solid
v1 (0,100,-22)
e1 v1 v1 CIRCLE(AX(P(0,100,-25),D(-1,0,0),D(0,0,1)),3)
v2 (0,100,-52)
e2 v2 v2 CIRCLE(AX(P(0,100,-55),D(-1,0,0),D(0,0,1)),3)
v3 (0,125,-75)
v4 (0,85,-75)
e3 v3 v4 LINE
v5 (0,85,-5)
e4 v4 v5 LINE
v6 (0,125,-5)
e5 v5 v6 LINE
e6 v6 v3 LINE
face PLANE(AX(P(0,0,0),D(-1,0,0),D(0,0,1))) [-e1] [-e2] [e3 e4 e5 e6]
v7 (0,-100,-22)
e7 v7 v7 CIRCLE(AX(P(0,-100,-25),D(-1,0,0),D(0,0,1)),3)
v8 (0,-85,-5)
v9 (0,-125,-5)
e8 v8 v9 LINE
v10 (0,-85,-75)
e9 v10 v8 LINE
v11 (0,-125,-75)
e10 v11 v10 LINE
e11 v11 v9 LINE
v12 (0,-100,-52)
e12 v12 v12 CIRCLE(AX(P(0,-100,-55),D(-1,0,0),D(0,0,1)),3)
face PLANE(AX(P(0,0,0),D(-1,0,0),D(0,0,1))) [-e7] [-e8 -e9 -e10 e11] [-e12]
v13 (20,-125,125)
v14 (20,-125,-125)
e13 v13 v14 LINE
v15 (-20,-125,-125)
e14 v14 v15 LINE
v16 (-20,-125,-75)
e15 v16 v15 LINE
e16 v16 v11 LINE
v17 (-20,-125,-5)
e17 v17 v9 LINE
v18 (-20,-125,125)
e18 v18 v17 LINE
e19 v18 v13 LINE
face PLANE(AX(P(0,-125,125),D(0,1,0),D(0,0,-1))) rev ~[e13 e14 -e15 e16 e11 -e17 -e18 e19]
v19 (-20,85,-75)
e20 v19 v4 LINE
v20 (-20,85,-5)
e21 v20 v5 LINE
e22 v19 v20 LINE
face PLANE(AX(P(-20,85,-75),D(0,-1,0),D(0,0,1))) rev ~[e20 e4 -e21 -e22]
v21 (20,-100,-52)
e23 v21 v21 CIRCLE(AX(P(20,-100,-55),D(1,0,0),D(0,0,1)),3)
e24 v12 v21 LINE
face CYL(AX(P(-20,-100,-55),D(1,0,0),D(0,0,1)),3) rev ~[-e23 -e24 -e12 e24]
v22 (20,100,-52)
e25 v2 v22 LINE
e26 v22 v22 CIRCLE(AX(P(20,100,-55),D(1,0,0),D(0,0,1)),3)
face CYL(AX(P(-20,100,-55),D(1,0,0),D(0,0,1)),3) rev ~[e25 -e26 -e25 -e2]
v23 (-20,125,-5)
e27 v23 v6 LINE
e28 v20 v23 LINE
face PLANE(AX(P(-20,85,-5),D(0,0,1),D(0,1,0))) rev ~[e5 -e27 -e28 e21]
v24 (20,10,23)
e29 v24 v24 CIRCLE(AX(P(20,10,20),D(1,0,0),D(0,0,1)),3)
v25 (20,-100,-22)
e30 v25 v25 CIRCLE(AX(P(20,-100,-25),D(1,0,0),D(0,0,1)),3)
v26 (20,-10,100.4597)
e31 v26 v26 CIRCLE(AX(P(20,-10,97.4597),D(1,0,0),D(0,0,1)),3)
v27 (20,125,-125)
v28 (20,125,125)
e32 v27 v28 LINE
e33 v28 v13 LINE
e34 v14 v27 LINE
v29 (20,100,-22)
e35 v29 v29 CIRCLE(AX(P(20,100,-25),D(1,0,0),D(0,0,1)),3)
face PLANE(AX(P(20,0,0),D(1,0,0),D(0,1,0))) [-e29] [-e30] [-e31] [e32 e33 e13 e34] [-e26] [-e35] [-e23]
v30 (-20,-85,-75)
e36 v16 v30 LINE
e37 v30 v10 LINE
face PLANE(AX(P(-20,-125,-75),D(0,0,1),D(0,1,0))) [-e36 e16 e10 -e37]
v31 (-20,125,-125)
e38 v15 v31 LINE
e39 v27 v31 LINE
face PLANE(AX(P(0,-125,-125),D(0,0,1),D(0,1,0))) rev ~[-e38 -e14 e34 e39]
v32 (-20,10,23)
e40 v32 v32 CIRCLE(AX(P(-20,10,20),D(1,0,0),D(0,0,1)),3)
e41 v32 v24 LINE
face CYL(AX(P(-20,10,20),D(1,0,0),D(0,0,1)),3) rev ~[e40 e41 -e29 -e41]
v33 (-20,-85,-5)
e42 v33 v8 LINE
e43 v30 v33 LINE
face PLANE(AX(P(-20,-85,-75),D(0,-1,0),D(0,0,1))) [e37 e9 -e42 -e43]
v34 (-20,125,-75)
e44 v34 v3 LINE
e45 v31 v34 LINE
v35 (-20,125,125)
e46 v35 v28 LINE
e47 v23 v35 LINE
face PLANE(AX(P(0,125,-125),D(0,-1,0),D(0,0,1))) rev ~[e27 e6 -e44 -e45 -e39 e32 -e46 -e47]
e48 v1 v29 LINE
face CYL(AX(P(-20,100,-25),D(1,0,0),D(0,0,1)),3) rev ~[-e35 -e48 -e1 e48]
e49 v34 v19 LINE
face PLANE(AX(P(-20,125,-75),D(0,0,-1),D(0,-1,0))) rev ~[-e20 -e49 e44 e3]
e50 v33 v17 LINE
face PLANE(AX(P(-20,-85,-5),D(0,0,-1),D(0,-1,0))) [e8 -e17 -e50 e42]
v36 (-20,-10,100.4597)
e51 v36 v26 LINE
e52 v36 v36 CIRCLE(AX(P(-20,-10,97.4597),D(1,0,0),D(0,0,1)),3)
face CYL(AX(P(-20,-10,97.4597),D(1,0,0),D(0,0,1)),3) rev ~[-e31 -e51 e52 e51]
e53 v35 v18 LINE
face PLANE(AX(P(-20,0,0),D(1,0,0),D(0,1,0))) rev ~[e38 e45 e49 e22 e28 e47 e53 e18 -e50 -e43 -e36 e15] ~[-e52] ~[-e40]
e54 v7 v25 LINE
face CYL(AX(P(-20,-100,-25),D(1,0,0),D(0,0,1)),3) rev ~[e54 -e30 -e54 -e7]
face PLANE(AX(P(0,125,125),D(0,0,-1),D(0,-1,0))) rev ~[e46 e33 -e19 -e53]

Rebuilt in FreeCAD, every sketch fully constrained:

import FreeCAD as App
import Part
import Sketcher
from FreeCAD import Vector
Q = App.Units.Quantity

doc = App.newDocument("Part")
body = doc.addObject("PartDesign::Body", "Body")

# Sketch on YZ plane
sketch1 = body.newObject("Sketcher::SketchObject", "Sketch")
sketch1.AttachmentSupport = (doc.getObject("YZ_Plane"), [""])
sketch1.MapMode = "FlatFace"
sketch1.addGeometry(Part.LineSegment(Vector(125, -125, 0), Vector(125, 125, 0)), False)
sketch1.addGeometry(Part.LineSegment(Vector(125, 125, 0), Vector(-125, 125, 0)), False)
sketch1.addGeometry(Part.LineSegment(Vector(-125, 125, 0), Vector(-125, -125, 0)), False)
sketch1.addGeometry(Part.LineSegment(Vector(-125, -125, 0), Vector(125, -125, 0)), False)
sketch1.addConstraint(Sketcher.Constraint("Coincident", 0, 2, 1, 1))
sketch1.addConstraint(Sketcher.Constraint("Coincident", 1, 2, 2, 1))
sketch1.addConstraint(Sketcher.Constraint("Coincident", 2, 2, 3, 1))
sketch1.addConstraint(Sketcher.Constraint("Coincident", 3, 2, 0, 1))
sketch1.addConstraint(Sketcher.Constraint("Vertical", 0))
sketch1.addConstraint(Sketcher.Constraint("Horizontal", 1))
sketch1.addConstraint(Sketcher.Constraint("Vertical", 2))
sketch1.addConstraint(Sketcher.Constraint("Horizontal", 3))
sketch1.addConstraint(Sketcher.Constraint("Symmetric", 0, 2, 2, 2, -1, 1))
sketch1.addConstraint(Sketcher.Constraint("Equal", 3, 0))
sketch1.addConstraint(Sketcher.Constraint("DistanceX", 1, 2, 1, 1, Q("250 mm")))
pad1 = body.newObject("PartDesign::Pad", "Pad")
pad1.Profile = sketch1
pad1.Length = 40
pad1.Midplane = True

# Sketch on YZ plane
sketch2 = body.newObject("Sketcher::SketchObject", "Sketch001")
sketch2.AttachmentSupport = (doc.getObject("YZ_Plane"), [""])
sketch2.MapMode = "FlatFace"
sketch2.AttachmentOffset = App.Placement(Vector(0, 0, -20), App.Rotation())
sketch2.addGeometry(Part.Circle(Vector(100, -55, 0), Vector(0, 0, 1), 3), False)
sketch2.addGeometry(Part.Circle(Vector(100, -25, 0), Vector(0, 0, 1), 3), False)
sketch2.addGeometry(Part.Circle(Vector(-100, -55, 0), Vector(0, 0, 1), 3), False)
sketch2.addGeometry(Part.Circle(Vector(-100, -25, 0), Vector(0, 0, 1), 3), False)
sketch2.addGeometry(Part.Circle(Vector(10, 20, 0), Vector(0, 0, 1), 3), False)
sketch2.addGeometry(Part.Circle(Vector(-10, 97.5, 0), Vector(0, 0, 1), 3), False)
sketch2.addConstraint(Sketcher.Constraint("Equal", 0, 1))
sketch2.addConstraint(Sketcher.Constraint("Equal", 1, 2))
sketch2.addConstraint(Sketcher.Constraint("Equal", 2, 3))
sketch2.addConstraint(Sketcher.Constraint("Equal", 3, 4))
sketch2.addConstraint(Sketcher.Constraint("Equal", 4, 5))
sketch2.addConstraint(Sketcher.Constraint("Symmetric", 0, 3, 2, 3, -2))
sketch2.addConstraint(Sketcher.Constraint("Symmetric", 1, 3, 3, 3, -2))
sketch2.addConstraint(Sketcher.Constraint("Vertical", 0, 3, 1, 3))
sketch2.addConstraint(Sketcher.Constraint("Diameter", 0, Q("6 mm")))
sketch2.addConstraint(Sketcher.Constraint("DistanceX", -1, 1, 0, 3, Q("100 mm")))
sketch2.addConstraint(Sketcher.Constraint("DistanceY", 0, 3, -1, 1, Q("55 mm")))
sketch2.addConstraint(Sketcher.Constraint("DistanceY", 1, 3, -1, 1, Q("25 mm")))
sketch2.addConstraint(Sketcher.Constraint("DistanceX", -1, 1, 4, 3, Q("10 mm")))
sketch2.addConstraint(Sketcher.Constraint("DistanceY", -1, 1, 4, 3, Q("20 mm")))
sketch2.addConstraint(Sketcher.Constraint("DistanceX", 5, 3, -1, 1, Q("10 mm")))
sketch2.addConstraint(Sketcher.Constraint("DistanceY", -1, 1, 5, 3, Q("97.4597 mm")))
doc.recompute()
hole = body.newObject("PartDesign::Hole", "Hole")
hole.Profile = sketch2
hole.ThreadType = "None"
hole.Diameter = 6
hole.DepthType = "ThroughAll"
hole.Reversed = True

# Sketch on YZ plane
sketch3 = body.newObject("Sketcher::SketchObject", "Sketch002")
sketch3.AttachmentSupport = (doc.getObject("YZ_Plane"), [""])
sketch3.MapMode = "FlatFace"
sketch3.AttachmentOffset = App.Placement(Vector(0, 0, -20), App.Rotation())
sketch3.addGeometry(Part.LineSegment(Vector(85, -5, 0), Vector(125, -5, 0)), False)
sketch3.addGeometry(Part.LineSegment(Vector(125, -5, 0), Vector(125, -75, 0)), False)
sketch3.addGeometry(Part.LineSegment(Vector(125, -75, 0), Vector(85, -75, 0)), False)
sketch3.addGeometry(Part.LineSegment(Vector(85, -75, 0), Vector(85, -5, 0)), False)
sketch3.addGeometry(Part.Circle(Vector(100, -55, 0), Vector(0, 0, 1), 3), False)
sketch3.addGeometry(Part.Circle(Vector(100, -25, 0), Vector(0, 0, 1), 3), False)
sketch3.addGeometry(Part.LineSegment(Vector(-85, -75, 0), Vector(-125, -75, 0)), False)
sketch3.addGeometry(Part.LineSegment(Vector(-125, -75, 0), Vector(-125, -5, 0)), False)
sketch3.addGeometry(Part.LineSegment(Vector(-125, -5, 0), Vector(-85, -5, 0)), False)
sketch3.addGeometry(Part.LineSegment(Vector(-85, -5, 0), Vector(-85, -75, 0)), False)
sketch3.addGeometry(Part.Circle(Vector(-100, -55, 0), Vector(0, 0, 1), 3), False)
sketch3.addGeometry(Part.Circle(Vector(-100, -25, 0), Vector(0, 0, 1), 3), False)
sketch3.addConstraint(Sketcher.Constraint("Coincident", 0, 2, 1, 1))
sketch3.addConstraint(Sketcher.Constraint("Coincident", 1, 2, 2, 1))
sketch3.addConstraint(Sketcher.Constraint("Coincident", 2, 2, 3, 1))
sketch3.addConstraint(Sketcher.Constraint("Coincident", 3, 2, 0, 1))
sketch3.addConstraint(Sketcher.Constraint("Coincident", 6, 2, 7, 1))
sketch3.addConstraint(Sketcher.Constraint("Coincident", 7, 2, 8, 1))
sketch3.addConstraint(Sketcher.Constraint("Coincident", 8, 2, 9, 1))
sketch3.addConstraint(Sketcher.Constraint("Coincident", 9, 2, 6, 1))
sketch3.addConstraint(Sketcher.Constraint("Horizontal", 0))
sketch3.addConstraint(Sketcher.Constraint("Vertical", 1))
sketch3.addConstraint(Sketcher.Constraint("Horizontal", 2))
sketch3.addConstraint(Sketcher.Constraint("Vertical", 3))
sketch3.addConstraint(Sketcher.Constraint("Horizontal", 6))
sketch3.addConstraint(Sketcher.Constraint("Vertical", 7))
sketch3.addConstraint(Sketcher.Constraint("Horizontal", 8))
sketch3.addConstraint(Sketcher.Constraint("Vertical", 9))
sketch3.addConstraint(Sketcher.Constraint("Equal", 4, 5))
sketch3.addConstraint(Sketcher.Constraint("Equal", 5, 10))
sketch3.addConstraint(Sketcher.Constraint("Equal", 10, 11))
sketch3.addConstraint(Sketcher.Constraint("Symmetric", 4, 3, 10, 3, -2))
sketch3.addConstraint(Sketcher.Constraint("Symmetric", 5, 3, 11, 3, -2))
sketch3.addConstraint(Sketcher.Constraint("Symmetric", 1, 2, 6, 2, -2))
sketch3.addConstraint(Sketcher.Constraint("Symmetric", 3, 2, 8, 2, -2))
sketch3.addConstraint(Sketcher.Constraint("Vertical", 4, 3, 5, 3))
sketch3.addConstraint(Sketcher.Constraint("DistanceX", 0, 1, 0, 2, Q("40 mm")))
sketch3.addConstraint(Sketcher.Constraint("DistanceY", 1, 2, 1, 1, Q("70 mm")))
sketch3.addConstraint(Sketcher.Constraint("Diameter", 4, Q("6 mm")))
sketch3.addConstraint(Sketcher.Constraint("DistanceX", -1, 1, 4, 3, Q("100 mm")))
sketch3.addConstraint(Sketcher.Constraint("DistanceY", 4, 3, -1, 1, Q("55 mm")))
sketch3.addConstraint(Sketcher.Constraint("DistanceY", 5, 3, -1, 1, Q("25 mm")))
sketch3.addConstraint(Sketcher.Constraint("DistanceX", -1, 1, 0, 2, Q("125 mm")))
sketch3.addConstraint(Sketcher.Constraint("DistanceY", 0, 2, -1, 1, Q("5 mm")))
pocket1 = body.newObject("PartDesign::Pocket", "Pocket")
pocket1.Profile = sketch3
pocket1.Length = 20
pocket1.Reversed = True

doc.recompute()
